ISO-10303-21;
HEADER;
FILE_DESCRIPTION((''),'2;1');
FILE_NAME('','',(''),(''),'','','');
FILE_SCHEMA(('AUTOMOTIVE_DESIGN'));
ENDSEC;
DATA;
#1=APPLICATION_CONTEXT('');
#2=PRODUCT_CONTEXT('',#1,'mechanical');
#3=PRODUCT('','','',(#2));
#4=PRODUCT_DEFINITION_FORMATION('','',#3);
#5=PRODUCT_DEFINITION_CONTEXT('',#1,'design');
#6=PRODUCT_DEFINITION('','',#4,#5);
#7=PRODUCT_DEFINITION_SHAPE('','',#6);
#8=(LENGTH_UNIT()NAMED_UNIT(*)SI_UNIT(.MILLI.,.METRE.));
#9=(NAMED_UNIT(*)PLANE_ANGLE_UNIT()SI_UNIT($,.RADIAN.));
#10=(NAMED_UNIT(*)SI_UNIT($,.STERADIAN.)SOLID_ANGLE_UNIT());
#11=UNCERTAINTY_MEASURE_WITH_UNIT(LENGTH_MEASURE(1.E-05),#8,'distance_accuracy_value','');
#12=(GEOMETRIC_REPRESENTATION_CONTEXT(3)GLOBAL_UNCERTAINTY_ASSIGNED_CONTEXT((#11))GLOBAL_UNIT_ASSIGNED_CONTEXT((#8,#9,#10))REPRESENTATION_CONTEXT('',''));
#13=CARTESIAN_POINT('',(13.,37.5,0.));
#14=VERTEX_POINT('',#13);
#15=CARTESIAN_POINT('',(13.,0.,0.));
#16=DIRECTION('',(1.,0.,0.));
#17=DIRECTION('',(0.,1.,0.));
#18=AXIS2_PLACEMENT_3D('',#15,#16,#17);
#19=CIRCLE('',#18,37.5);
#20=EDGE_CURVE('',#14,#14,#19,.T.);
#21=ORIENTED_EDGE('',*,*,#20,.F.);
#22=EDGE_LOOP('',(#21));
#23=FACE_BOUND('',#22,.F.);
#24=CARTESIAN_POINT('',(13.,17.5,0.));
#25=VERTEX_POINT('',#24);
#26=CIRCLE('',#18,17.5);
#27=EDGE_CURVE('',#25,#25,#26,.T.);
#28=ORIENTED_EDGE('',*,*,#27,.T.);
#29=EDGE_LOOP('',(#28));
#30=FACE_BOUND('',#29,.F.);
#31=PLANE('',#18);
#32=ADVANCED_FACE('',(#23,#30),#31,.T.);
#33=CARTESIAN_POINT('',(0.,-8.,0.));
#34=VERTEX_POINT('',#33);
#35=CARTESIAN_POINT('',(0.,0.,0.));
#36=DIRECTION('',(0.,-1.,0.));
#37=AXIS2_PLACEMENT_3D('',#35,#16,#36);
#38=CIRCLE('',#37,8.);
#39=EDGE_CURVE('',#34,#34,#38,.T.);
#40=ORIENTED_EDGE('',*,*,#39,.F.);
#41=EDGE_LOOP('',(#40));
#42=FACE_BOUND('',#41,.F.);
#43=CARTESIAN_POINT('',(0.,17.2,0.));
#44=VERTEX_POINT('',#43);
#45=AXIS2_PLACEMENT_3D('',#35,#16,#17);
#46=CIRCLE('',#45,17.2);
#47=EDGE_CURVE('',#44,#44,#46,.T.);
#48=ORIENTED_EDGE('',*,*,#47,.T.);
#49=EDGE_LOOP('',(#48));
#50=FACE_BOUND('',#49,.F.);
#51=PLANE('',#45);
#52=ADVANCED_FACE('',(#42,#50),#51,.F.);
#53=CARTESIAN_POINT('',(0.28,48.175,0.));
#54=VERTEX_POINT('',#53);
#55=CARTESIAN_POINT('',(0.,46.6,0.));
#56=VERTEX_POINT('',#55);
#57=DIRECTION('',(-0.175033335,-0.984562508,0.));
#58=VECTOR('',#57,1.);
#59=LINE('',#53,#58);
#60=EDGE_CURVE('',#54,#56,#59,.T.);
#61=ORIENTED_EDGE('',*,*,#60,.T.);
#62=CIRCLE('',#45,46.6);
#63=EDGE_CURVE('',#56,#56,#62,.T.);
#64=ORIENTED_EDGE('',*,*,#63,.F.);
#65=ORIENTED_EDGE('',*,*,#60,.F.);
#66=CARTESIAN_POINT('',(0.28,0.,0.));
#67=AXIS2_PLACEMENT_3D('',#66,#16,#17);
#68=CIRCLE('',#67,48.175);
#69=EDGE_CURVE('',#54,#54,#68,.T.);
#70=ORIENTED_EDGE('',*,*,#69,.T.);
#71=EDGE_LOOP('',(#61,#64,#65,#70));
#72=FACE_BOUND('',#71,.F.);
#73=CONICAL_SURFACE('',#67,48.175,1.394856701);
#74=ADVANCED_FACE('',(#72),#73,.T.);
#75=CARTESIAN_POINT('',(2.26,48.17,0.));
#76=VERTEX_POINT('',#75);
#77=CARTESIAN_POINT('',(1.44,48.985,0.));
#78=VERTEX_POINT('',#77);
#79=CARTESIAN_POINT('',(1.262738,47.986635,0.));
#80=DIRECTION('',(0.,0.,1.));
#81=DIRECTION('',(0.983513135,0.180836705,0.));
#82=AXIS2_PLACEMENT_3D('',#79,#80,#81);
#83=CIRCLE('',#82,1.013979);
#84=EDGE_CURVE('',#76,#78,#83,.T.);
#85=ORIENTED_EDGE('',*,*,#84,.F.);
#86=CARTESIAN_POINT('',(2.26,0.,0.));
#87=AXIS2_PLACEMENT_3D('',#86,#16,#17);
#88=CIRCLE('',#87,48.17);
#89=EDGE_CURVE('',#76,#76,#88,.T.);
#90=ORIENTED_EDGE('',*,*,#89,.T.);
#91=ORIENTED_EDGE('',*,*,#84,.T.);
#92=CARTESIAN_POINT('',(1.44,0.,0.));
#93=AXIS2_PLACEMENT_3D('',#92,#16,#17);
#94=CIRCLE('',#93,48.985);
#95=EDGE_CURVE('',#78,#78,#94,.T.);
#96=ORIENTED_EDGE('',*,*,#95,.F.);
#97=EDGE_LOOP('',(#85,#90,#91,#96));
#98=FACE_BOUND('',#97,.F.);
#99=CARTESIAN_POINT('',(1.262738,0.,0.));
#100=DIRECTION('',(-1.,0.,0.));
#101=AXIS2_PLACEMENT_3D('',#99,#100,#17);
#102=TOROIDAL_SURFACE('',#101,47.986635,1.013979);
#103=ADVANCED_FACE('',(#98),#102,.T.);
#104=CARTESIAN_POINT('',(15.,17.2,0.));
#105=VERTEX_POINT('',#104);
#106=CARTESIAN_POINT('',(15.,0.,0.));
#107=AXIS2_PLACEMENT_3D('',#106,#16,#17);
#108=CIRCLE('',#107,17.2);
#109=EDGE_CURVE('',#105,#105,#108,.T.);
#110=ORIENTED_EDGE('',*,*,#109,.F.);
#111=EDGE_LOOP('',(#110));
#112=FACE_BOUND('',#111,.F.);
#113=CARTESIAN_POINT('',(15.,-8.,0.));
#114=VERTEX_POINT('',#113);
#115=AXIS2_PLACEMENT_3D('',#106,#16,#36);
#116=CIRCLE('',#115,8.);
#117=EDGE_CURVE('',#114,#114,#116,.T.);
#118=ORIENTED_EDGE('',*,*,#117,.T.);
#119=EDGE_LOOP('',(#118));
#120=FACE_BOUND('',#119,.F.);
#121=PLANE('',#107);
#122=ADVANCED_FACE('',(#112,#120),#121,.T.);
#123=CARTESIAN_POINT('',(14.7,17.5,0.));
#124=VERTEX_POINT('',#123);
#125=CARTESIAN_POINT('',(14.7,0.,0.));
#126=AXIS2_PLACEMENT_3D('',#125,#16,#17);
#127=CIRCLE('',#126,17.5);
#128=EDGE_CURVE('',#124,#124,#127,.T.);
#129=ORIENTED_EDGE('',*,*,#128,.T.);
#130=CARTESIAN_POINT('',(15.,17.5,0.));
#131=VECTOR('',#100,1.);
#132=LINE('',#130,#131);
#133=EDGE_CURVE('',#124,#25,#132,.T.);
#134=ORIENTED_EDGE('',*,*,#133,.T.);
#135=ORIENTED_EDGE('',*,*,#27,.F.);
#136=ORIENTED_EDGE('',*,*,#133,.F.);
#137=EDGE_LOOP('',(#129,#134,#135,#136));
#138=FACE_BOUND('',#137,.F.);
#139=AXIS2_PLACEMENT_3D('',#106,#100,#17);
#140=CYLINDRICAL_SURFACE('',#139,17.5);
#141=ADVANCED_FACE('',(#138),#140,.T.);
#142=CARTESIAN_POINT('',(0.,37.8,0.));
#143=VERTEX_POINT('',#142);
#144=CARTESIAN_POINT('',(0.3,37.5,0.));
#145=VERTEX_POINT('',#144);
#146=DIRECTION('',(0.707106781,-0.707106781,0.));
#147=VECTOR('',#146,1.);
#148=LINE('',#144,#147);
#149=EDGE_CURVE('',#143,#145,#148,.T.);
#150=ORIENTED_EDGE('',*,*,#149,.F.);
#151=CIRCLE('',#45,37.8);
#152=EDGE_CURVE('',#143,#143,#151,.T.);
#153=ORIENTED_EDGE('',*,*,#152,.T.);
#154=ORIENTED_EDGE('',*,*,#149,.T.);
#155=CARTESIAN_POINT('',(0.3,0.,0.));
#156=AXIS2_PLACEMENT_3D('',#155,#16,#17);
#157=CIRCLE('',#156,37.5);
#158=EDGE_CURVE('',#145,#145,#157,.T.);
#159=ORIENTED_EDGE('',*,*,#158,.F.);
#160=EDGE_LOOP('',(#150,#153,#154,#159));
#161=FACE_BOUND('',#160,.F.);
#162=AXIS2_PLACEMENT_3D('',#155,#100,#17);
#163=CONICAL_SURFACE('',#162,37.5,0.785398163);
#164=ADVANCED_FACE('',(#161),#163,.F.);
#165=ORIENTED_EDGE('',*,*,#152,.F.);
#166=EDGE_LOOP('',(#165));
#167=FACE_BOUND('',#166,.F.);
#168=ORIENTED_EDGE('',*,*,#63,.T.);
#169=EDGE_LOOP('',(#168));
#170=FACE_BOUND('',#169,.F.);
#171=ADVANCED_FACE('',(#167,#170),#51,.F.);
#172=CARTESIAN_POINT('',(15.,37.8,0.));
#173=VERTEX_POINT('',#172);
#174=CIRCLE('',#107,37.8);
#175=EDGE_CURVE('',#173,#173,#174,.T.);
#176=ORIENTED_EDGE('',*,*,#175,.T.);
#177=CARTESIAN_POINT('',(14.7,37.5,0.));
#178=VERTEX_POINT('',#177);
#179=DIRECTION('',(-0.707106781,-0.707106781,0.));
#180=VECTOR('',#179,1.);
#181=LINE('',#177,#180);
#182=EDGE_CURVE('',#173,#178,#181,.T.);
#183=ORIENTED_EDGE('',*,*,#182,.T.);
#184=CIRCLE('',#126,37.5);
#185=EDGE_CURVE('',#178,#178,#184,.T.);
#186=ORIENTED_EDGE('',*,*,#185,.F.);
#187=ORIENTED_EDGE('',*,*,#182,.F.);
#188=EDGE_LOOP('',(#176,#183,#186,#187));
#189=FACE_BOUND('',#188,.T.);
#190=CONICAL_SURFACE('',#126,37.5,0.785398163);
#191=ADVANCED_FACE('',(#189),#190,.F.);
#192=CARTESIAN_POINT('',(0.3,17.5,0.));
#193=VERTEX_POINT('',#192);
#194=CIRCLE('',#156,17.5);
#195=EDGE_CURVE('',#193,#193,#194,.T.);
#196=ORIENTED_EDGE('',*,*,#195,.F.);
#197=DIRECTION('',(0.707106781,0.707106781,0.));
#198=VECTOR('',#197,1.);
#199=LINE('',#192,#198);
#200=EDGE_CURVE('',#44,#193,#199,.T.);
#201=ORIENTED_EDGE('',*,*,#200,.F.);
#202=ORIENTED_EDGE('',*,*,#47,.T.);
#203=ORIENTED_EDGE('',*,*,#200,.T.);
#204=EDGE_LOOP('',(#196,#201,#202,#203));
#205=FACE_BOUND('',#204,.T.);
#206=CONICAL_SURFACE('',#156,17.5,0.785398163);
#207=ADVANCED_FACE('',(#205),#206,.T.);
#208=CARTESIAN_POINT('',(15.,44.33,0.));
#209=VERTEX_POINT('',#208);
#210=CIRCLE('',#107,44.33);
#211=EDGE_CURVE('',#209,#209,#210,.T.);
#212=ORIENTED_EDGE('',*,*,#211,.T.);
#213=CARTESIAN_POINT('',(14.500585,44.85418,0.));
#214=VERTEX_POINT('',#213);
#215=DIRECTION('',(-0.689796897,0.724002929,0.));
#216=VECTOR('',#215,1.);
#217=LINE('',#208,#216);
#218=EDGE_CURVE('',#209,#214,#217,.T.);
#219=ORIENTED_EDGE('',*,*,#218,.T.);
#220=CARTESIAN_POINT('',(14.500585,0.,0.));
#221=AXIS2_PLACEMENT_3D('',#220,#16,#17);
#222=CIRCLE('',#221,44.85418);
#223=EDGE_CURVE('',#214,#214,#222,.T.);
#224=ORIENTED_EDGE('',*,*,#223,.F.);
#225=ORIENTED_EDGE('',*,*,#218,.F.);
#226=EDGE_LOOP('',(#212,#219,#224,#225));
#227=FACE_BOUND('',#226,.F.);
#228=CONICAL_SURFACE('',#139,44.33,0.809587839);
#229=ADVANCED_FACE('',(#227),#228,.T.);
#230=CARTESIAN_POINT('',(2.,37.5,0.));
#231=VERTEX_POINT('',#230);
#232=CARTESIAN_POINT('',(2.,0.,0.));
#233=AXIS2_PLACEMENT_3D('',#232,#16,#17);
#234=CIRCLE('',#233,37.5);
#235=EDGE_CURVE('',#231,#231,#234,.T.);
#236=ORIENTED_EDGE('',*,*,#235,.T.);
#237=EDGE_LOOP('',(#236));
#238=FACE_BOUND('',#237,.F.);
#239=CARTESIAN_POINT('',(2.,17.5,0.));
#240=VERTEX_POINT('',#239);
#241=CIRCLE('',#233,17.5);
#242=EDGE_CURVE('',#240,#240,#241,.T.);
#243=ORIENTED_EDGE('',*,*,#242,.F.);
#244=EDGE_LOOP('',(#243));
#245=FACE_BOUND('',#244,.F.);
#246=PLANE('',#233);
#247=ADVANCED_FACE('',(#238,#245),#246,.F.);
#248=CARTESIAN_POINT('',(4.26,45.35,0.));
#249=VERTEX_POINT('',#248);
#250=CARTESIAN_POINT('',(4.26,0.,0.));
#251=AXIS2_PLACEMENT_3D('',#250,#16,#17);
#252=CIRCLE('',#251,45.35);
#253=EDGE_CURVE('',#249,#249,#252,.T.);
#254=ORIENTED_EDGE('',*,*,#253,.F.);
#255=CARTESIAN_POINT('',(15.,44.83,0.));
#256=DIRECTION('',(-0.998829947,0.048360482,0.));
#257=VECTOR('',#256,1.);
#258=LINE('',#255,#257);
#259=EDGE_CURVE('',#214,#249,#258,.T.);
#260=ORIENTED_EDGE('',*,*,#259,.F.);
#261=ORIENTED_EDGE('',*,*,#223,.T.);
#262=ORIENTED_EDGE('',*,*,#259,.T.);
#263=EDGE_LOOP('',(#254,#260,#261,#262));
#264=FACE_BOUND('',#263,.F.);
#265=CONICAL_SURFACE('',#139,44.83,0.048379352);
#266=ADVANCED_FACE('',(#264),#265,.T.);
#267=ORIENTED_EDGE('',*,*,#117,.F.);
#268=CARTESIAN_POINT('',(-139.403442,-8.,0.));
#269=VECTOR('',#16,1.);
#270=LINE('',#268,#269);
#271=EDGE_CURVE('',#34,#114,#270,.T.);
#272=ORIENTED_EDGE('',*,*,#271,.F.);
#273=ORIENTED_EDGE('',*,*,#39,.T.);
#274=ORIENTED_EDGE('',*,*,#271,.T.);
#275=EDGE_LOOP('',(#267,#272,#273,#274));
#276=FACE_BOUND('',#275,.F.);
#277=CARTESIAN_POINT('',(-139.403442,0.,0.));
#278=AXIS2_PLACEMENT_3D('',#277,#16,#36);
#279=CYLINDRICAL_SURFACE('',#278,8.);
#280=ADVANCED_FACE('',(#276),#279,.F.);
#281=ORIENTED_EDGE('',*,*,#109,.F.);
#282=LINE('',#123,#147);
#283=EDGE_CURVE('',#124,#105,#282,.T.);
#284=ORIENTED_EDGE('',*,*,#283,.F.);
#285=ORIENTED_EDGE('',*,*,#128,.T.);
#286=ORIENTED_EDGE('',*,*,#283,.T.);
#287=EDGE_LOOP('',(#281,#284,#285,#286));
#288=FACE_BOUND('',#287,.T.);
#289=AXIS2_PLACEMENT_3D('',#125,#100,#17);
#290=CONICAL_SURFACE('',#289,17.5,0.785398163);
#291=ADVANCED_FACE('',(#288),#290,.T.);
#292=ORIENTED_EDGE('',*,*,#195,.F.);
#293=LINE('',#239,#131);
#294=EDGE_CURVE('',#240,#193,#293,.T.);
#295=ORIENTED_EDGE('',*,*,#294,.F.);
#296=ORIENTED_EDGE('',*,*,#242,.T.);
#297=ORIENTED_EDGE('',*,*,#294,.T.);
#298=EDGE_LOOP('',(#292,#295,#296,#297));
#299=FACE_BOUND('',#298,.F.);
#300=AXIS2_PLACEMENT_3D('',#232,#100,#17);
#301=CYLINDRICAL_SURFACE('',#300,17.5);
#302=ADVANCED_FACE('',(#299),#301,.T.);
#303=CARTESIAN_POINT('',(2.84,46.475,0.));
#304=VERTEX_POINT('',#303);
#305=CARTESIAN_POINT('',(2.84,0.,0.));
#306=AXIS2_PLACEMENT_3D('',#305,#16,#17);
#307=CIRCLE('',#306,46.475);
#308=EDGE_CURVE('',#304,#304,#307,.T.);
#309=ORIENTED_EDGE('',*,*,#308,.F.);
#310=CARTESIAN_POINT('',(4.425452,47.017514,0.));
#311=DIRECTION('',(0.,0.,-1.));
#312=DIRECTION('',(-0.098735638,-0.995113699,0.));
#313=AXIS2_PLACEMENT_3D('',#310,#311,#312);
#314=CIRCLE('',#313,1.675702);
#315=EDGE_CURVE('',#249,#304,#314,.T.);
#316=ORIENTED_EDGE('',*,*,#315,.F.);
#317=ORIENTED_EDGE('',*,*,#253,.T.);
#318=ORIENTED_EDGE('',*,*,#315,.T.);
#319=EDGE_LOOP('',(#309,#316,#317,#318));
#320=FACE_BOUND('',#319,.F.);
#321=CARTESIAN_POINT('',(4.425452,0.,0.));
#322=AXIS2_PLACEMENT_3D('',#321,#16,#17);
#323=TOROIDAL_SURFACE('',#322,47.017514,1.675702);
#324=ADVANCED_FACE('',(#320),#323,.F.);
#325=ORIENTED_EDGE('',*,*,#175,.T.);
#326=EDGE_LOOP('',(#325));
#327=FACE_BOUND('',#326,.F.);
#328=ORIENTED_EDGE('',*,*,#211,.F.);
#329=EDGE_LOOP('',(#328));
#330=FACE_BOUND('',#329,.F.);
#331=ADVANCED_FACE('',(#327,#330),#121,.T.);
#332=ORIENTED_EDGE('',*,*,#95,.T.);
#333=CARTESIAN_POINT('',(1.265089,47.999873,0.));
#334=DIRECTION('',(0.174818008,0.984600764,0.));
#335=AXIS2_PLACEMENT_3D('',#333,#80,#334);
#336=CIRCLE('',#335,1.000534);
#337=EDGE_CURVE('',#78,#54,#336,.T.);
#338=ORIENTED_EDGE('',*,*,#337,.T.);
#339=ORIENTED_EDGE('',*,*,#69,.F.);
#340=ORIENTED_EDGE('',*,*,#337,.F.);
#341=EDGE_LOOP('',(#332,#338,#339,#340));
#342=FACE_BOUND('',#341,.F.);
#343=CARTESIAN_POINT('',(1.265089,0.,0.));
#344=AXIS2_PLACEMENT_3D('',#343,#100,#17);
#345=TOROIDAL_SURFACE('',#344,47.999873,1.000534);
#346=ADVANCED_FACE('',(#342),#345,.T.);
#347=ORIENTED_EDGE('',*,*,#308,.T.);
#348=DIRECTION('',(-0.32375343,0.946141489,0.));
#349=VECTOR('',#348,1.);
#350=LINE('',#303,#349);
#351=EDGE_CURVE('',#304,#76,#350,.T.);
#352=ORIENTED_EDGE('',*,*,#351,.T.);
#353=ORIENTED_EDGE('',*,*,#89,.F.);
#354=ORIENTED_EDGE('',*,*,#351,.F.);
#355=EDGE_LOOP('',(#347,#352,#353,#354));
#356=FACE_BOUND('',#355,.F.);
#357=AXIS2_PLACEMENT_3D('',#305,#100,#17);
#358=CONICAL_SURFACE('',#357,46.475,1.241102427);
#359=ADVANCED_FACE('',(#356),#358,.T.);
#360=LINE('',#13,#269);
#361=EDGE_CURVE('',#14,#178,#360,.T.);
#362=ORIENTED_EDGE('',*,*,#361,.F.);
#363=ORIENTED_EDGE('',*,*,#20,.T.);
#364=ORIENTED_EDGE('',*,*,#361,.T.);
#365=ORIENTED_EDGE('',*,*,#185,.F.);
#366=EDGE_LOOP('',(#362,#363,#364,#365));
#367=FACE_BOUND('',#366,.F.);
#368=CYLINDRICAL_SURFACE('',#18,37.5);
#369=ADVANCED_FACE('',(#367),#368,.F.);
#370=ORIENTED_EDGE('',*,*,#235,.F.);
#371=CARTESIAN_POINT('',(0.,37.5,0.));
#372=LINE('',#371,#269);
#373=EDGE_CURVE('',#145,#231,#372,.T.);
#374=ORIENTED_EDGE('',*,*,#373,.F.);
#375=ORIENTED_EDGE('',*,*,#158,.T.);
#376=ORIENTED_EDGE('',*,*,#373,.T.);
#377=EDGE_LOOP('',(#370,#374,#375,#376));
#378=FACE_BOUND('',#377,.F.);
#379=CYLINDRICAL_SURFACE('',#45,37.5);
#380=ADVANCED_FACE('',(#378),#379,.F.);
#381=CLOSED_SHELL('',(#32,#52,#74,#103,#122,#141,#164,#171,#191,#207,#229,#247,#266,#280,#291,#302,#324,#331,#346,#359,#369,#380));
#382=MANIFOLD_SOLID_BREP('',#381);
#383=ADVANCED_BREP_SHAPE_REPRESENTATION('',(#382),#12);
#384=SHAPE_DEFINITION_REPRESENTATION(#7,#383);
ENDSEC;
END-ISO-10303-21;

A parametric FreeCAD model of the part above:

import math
import FreeCAD as App
import Part
import Sketcher


def edges_at(feature, points):
    """Names of the edges that pass closest to the given points."""
    edges = feature.Shape.Edges
    near = lambda p: min(range(len(edges)), key=lambda i: edges[i].distToShape(Part.Vertex(*p))[0])
    return sorted({f"Edge{near(p) + 1}" for p in points})

doc = App.newDocument("Part")
body = doc.addObject("PartDesign::Body", "Body")

sketch1 = body.newObject("Sketcher::SketchObject", "Sketch")
sketch1.AttachmentSupport = (doc.getObject("XY_Plane"), [""])
sketch1.MapMode = "FlatFace"
sketch1.addGeometry(Part.LineSegment(App.Vector(0, 17.5, 0), App.Vector(0, 0, 0)), False)
sketch1.addGeometry(Part.LineSegment(App.Vector(0, 0, 0), App.Vector(15, 0, 0)), False)
sketch1.addGeometry(Part.LineSegment(App.Vector(15, 0, 0), App.Vector(15, 17.5, 0)), False)
sketch1.addGeometry(Part.LineSegment(App.Vector(15, 17.5, 0), App.Vector(13, 17.5, 0)), False)
sketch1.addGeometry(Part.LineSegment(App.Vector(13, 17.5, 0), App.Vector(13, 37.5, 0)), False)
sketch1.addGeometry(Part.LineSegment(App.Vector(13, 37.5, 0), App.Vector(15, 37.5, 0)), False)
sketch1.addGeometry(Part.LineSegment(App.Vector(15, 37.5, 0), App.Vector(15, 44.83, 0)), False)
sketch1.addGeometry(Part.LineSegment(App.Vector(15, 44.83, 0), App.Vector(4.26, 45.35, 0)), False)
sketch1.addGeometry(Part.ArcOfCircle(Part.Circle(App.Vector(4.425452, 47.017514, 0), App.Vector(0, 0, 1), 1.675702), math.radians(-161.109931), math.radians(-95.666368)), False)
sketch1.addGeometry(Part.LineSegment(App.Vector(2.84, 46.475, 0), App.Vector(2.26, 48.17, 0)), False)
sketch1.addGeometry(Part.ArcOfCircle(Part.Circle(App.Vector(1.262738, 47.986635, 0), App.Vector(0, 0, 1), 1.013979), math.radians(10.418499), math.radians(79.931933)), False)
sketch1.addGeometry(Part.ArcOfCircle(Part.Circle(App.Vector(1.265089, 47.999873, 0), App.Vector(0, 0, 1), 1.000534), math.radians(79.931933), math.radians(169.919402)), False)
sketch1.addGeometry(Part.LineSegment(App.Vector(0.28, 48.175, 0), App.Vector(0, 46.6, 0)), False)
sketch1.addGeometry(Part.LineSegment(App.Vector(0, 46.6, 0), App.Vector(0, 37.5, 0)), False)
sketch1.addGeometry(Part.LineSegment(App.Vector(0, 37.5, 0), App.Vector(2, 37.5, 0)), False)
sketch1.addGeometry(Part.LineSegment(App.Vector(2, 37.5, 0), App.Vector(2, 17.5, 0)), False)
sketch1.addGeometry(Part.LineSegment(App.Vector(2, 17.5, 0), App.Vector(0, 17.5, 0)), False)
sketch1.addConstraint(Sketcher.Constraint("Coincident", 0, 2, 1, 1))
sketch1.addConstraint(Sketcher.Constraint("Coincident", 1, 2, 2, 1))
sketch1.addConstraint(Sketcher.Constraint("Coincident", 2, 2, 3, 1))
sketch1.addConstraint(Sketcher.Constraint("Coincident", 3, 2, 4, 1))
sketch1.addConstraint(Sketcher.Constraint("Coincident", 4, 2, 5, 1))
sketch1.addConstraint(Sketcher.Constraint("Coincident", 5, 2, 6, 1))
sketch1.addConstraint(Sketcher.Constraint("Coincident", 6, 2, 7, 1))
sketch1.addConstraint(Sketcher.Constraint("Coincident", 7, 2, 8, 2))
sketch1.addConstraint(Sketcher.Constraint("Tangent", 8, 1, 9, 1))
sketch1.addConstraint(Sketcher.Constraint("Coincident", 9, 2, 10, 1))
sketch1.addConstraint(Sketcher.Constraint("Tangent", 10, 2, 11, 1))
sketch1.addConstraint(Sketcher.Constraint("Tangent", 11, 2, 12, 1))
sketch1.addConstraint(Sketcher.Constraint("Coincident", 12, 2, 13, 1))
sketch1.addConstraint(Sketcher.Constraint("Coincident", 13, 2, 14, 1))
sketch1.addConstraint(Sketcher.Constraint("Coincident", 14, 2, 15, 1))
sketch1.addConstraint(Sketcher.Constraint("Coincident", 15, 2, 16, 1))
sketch1.addConstraint(Sketcher.Constraint("Coincident", 16, 2, 0, 1))
sketch1.addConstraint(Sketcher.Constraint("Vertical", 0))
sketch1.addConstraint(Sketcher.Constraint("Horizontal", 1))
sketch1.addConstraint(Sketcher.Constraint("Vertical", 2))
sketch1.addConstraint(Sketcher.Constraint("Horizontal", 3))
sketch1.addConstraint(Sketcher.Constraint("Vertical", 4))
sketch1.addConstraint(Sketcher.Constraint("Horizontal", 5))
sketch1.addConstraint(Sketcher.Constraint("Vertical", 6))
sketch1.addConstraint(Sketcher.Constraint("Vertical", 13))
sketch1.addConstraint(Sketcher.Constraint("Horizontal", 14))
sketch1.addConstraint(Sketcher.Constraint("Vertical", 15))
sketch1.addConstraint(Sketcher.Constraint("Horizontal", 16))
sketch1.addConstraint(Sketcher.Constraint("Coincident", 0, 2, -1, 1))
sketch1.addConstraint(Sketcher.Constraint("PointOnObject", 12, 2, -2))
sketch1.addConstraint(Sketcher.Constraint("Horizontal", 5, 2, 13, 2))
sketch1.addConstraint(Sketcher.Constraint("Horizontal", 3, 2, 15, 2))
sketch1.addConstraint(Sketcher.Constraint("Vertical", 2, 2, 5, 2))
sketch1.addConstraint(Sketcher.Constraint("Equal", 5, 14))
sketch1.addConstraint(Sketcher.Constraint("DistanceX", 1, 1, 1, 2, 15.0))
sketch1.addConstraint(Sketcher.Constraint("DistanceX", 3, 2, 3, 1, 2.0))
sketch1.addConstraint(Sketcher.Constraint("DistanceY", 4, 1, 4, 2, 20.0))
sketch1.addConstraint(Sketcher.Constraint("DistanceY", 0, 2, 0, 1, 17.5))
sketch1.addConstraint(Sketcher.Constraint("DistanceY", 13, 2, 13, 1, 9.1))
sketch1.addConstraint(Sketcher.Constraint("DistanceX", 9, 2, 7, 2, 2.0))
sketch1.addConstraint(Sketcher.Constraint("DistanceY", 6, 1, 6, 2, 7.33))
sketch1.addConstraint(Sketcher.Constraint("DistanceX", 10, 2, 8, 1, 1.4))
sketch1.addConstraint(Sketcher.Constraint("DistanceY", 8, 1, 11, 2, 1.7))
sketch1.addConstraint(Sketcher.Constraint("DistanceX", -1, 1, 7, 2, 4.26))
sketch1.addConstraint(Sketcher.Constraint("DistanceY", -1, 1, 7, 2, 45.35))
sketch1.addConstraint(Sketcher.Constraint("DistanceX", -1, 1, 8, 1, 2.84))
sketch1.addConstraint(Sketcher.Constraint("DistanceY", -1, 1, 9, 2, 48.17))
sketch1.addConstraint(Sketcher.Constraint("DistanceX", -1, 1, 11, 2, 0.28))
sketch1.addConstraint(Sketcher.Constraint("Radius", 10, 1.013979))
sketch1.addConstraint(Sketcher.Constraint("DistanceY", 8, 1, 10, 2, 2.51))
revolution = body.newObject("PartDesign::Revolution", "Revolution")
revolution.Profile = sketch1
revolution.ReferenceAxis = (sketch1, ["H_Axis"])
revolution.Angle = 360
doc.recompute()

chamfer = body.newObject("PartDesign::Chamfer", "Chamfer")
chamfer.Base = (revolution, edges_at(revolution, [(15, -44.83, 0)]))
chamfer.Size = 0.5

sketch2 = body.newObject("Sketcher::SketchObject", "Sketch001")
sketch2.AttachmentSupport = (doc.getObject("YZ_Plane"), [""])
sketch2.MapMode = "FlatFace"
sketch2.addGeometry(Part.Circle(App.Vector(0, 0, 0), App.Vector(0, 0, 1), 8), False)
sketch2.addConstraint(Sketcher.Constraint("Coincident", 0, 3, -1, 1))
sketch2.addConstraint(Sketcher.Constraint("Diameter", 0, 16.0))
doc.recompute()
hole = body.newObject("PartDesign::Hole", "Hole")
hole.Profile = sketch2
hole.ThreadType = "None"
hole.Diameter = 16
hole.DepthType = "ThroughAll"
hole.Reversed = True
doc.recompute()

chamfer2 = body.newObject("PartDesign::Chamfer", "Chamfer001")
chamfer2.Base = (hole, edges_at(hole, [
    (15, -37.5, 0),
    (15, -17.5, 0),
    (0, -17.5, 0),
    (0, -37.5, 0),
]))
chamfer2.Size = 0.3

doc.recompute()
